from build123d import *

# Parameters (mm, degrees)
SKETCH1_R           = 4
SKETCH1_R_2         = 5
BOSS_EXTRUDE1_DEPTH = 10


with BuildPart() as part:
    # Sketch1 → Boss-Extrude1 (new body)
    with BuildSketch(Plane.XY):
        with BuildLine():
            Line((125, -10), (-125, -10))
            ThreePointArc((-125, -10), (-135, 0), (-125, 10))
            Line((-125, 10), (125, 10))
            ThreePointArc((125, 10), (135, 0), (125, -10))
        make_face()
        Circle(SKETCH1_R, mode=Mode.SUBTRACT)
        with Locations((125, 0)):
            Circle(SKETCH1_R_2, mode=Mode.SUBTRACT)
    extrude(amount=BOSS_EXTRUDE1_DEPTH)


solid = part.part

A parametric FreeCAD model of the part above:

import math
import FreeCAD as App
import Part
import Sketcher
Q = App.Units.Quantity

doc = App.newDocument("Part")
body = doc.addObject("PartDesign::Body", "Body")

# Sketch on XY plane
sketch1 = doc.addObject("Sketcher::SketchObject", "Sketch")
body.addObject(sketch1)
sketch1.AttachmentSupport = (doc.XY_Plane, [""])
sketch1.MapMode = "FlatFace"
sketch1.addGeometry([
    Part.LineSegment(App.Vector(-125, -10, 0), App.Vector(125, -10, 0)),  # 0
    Part.ArcOfCircle(Part.Circle(App.Vector(125, 0, 0), App.Vector(0, 0, 1), 10), math.radians(-90), math.radians(90)),  # 1
    Part.LineSegment(App.Vector(125, 10, 0), App.Vector(-125, 10, 0)),  # 2
    Part.ArcOfCircle(Part.Circle(App.Vector(-125, 0, 0), App.Vector(0, 0, 1), 10), math.radians(90), math.radians(270)),  # 3
    Part.Circle(App.Vector(125, 0, 0), App.Vector(0, 0, 1), 5),  # 4
    Part.Circle(App.Vector(0, 0, 0), App.Vector(0, 0, 1), 4),  # 5
], False)
sketch1.addConstraint([
    Sketcher.Constraint("Tangent", 0, 2, 1, 1),
    Sketcher.Constraint("Tangent", 1, 2, 2, 1),
    Sketcher.Constraint("Tangent", 2, 2, 3, 1),
    Sketcher.Constraint("Tangent", 3, 2, 0, 1),
    Sketcher.Constraint("Horizontal", 0),
    Sketcher.Constraint("Horizontal", 2),
    Sketcher.Constraint("Coincident", 5, 3, -1, 1),
    Sketcher.Constraint("Coincident", 4, 3, 1, 3),
    Sketcher.Constraint("Symmetric", 1, 3, 3, 3, -1, 1),
    Sketcher.Constraint("Diameter", 4, Q("10 mm")),
    Sketcher.Constraint("Diameter", 5, Q("8 mm")),
    Sketcher.Constraint("Radius", 1, Q("10 mm")),
    Sketcher.Constraint("DistanceX", 0, 1, 0, 2, Q("250 mm")),
])
pad1 = doc.addObject("PartDesign::Pad", "Pad")
body.addObject(pad1)
pad1.Profile = sketch1
pad1.Length = 10

doc.recompute()
